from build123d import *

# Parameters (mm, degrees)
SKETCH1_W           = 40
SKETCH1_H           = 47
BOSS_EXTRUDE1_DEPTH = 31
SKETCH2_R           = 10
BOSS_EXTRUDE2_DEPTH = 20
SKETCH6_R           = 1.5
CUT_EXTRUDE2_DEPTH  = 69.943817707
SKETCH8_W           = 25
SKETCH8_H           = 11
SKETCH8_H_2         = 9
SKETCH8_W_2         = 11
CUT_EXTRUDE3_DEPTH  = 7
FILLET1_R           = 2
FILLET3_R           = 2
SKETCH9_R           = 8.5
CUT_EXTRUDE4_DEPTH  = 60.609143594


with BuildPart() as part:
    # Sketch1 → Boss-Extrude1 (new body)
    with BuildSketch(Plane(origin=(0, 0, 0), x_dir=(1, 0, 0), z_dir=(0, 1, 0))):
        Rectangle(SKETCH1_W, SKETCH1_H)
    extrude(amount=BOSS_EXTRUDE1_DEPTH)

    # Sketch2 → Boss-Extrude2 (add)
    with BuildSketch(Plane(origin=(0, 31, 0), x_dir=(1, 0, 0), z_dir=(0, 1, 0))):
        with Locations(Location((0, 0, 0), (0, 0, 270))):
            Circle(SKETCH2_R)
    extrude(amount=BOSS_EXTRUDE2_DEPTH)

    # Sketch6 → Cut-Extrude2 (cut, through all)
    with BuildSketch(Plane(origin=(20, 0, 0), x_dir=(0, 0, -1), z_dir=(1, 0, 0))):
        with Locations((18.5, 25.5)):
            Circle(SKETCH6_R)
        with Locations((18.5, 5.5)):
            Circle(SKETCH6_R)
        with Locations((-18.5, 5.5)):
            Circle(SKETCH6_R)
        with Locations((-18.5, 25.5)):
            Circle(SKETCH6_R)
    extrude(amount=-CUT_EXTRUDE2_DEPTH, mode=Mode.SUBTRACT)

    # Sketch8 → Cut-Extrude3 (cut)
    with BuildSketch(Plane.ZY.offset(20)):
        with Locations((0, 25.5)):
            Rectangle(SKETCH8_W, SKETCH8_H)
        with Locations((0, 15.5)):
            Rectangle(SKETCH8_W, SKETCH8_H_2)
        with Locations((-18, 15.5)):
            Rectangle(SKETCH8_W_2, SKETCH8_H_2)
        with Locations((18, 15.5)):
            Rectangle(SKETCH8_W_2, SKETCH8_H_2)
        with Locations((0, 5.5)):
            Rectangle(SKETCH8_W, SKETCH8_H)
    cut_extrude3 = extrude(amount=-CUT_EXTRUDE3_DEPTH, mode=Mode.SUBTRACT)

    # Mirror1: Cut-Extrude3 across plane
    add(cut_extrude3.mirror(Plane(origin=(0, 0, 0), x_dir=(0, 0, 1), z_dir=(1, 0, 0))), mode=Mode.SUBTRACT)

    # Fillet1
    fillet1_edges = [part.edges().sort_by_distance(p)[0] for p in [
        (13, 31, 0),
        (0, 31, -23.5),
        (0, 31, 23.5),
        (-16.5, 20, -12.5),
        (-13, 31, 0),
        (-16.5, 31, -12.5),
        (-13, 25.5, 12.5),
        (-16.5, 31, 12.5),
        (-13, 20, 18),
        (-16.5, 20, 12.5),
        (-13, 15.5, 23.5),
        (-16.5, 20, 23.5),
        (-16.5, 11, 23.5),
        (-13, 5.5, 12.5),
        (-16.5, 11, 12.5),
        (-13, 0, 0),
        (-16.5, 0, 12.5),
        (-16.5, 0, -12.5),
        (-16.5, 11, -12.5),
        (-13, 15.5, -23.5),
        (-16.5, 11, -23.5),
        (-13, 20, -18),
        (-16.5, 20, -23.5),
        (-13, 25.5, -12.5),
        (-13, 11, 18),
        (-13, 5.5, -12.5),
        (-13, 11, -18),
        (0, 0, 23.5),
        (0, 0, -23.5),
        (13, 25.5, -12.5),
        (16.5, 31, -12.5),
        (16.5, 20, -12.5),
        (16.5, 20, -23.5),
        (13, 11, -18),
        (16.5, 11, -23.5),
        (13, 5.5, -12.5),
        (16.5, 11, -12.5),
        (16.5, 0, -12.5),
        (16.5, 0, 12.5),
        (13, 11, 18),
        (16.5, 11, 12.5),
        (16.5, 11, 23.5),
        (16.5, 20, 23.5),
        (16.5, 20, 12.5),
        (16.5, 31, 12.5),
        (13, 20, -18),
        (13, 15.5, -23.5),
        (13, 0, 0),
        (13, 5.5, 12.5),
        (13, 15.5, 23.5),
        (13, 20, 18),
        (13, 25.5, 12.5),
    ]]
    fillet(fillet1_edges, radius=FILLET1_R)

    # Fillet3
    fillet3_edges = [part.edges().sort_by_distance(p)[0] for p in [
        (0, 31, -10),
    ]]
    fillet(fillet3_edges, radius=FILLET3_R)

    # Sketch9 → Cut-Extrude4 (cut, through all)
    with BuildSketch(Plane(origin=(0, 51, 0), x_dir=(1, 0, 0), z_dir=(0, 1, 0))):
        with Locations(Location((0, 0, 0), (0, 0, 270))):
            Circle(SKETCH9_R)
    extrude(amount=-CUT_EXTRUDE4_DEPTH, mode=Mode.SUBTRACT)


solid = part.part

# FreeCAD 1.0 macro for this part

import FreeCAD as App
import Part
import Sketcher
Q = App.Units.Quantity


def edges_at(feature, points):
    """Names of the edges that pass closest to the given points."""
    edges = feature.Shape.Edges
    near = lambda p: min(range(len(edges)), key=lambda i: edges[i].distToShape(Part.Vertex(*p))[0])
    return sorted({f"Edge{near(p) + 1}" for p in points})


def add_polygon(sketch, points):
    """Adds a closed chain of lines whose ends are joined by coincident constraints."""
    first, n = sketch.GeometryCount, len(points)
    for a, b in zip(points, points[1:] + points[:1]):
        sketch.addGeometry(Part.LineSegment(App.Vector(*a, 0), App.Vector(*b, 0)), False)
    for i in range(n):
        sketch.addConstraint(Sketcher.Constraint("Coincident", first + i, 2, first + (i + 1) % n, 1))

doc = App.newDocument("Part")
body = doc.addObject("PartDesign::Body", "Body")

# Sketch on XZ plane
sketch1 = body.newObject("Sketcher::SketchObject", "Sketch")
sketch1.AttachmentSupport = (doc.getObject("XZ_Plane"), [""])
sketch1.MapMode = "FlatFace"
add_polygon(sketch1, [(-20, -24), (-20, 24), (20, 24), (20, -24)])  # lines 0-3
sketch1.addConstraint([
    Sketcher.Constraint("Vertical", 0),
    Sketcher.Constraint("Horizontal", 1),
    Sketcher.Constraint("Vertical", 2),
    Sketcher.Constraint("Horizontal", 3),
    Sketcher.Constraint("Symmetric", 0, 2, 2, 2, -1, 1),
    Sketcher.Constraint("DistanceX", 1, 1, 1, 2, Q("40 mm")),
    Sketcher.Constraint("DistanceY", 0, 1, 0, 2, Q("47 mm")),
])
pad1 = body.newObject("PartDesign::Pad", "Pad")
pad1.Profile = sketch1
pad1.Length = 31
pad1.Reversed = True

# Sketch on XZ plane
sketch2 = body.newObject("Sketcher::SketchObject", "Sketch001")
sketch2.AttachmentSupport = (doc.getObject("XZ_Plane"), [""])
sketch2.MapMode = "FlatFace"
sketch2.AttachmentOffset = App.Placement(App.Vector(0, 0, -31), App.Rotation())
sketch2.addGeometry(Part.Circle(App.Vector(0, 0, 0), App.Vector(0, 0, 1), 10), False)
sketch2.addConstraint([
    Sketcher.Constraint("Coincident", 0, 3, -1, 1),
    Sketcher.Constraint("Diameter", 0, Q("20 mm")),
])
pad2 = body.newObject("PartDesign::Pad", "Pad001")
pad2.Profile = sketch2
pad2.Length = 20
pad2.Reversed = True

# Sketch on YZ plane
sketch3 = body.newObject("Sketcher::SketchObject", "Sketch002")
sketch3.AttachmentSupport = (doc.getObject("YZ_Plane"), [""])
sketch3.MapMode = "FlatFace"
sketch3.AttachmentOffset = App.Placement(App.Vector(0, 0, 20), App.Rotation())
sketch3.addGeometry([
    Part.Circle(App.Vector(25.5, -18.5, 0), App.Vector(0, 0, 1), 1.5),
    Part.Circle(App.Vector(5.5, -18.5, 0), App.Vector(0, 0, 1), 1.5),
    Part.Circle(App.Vector(5.5, 18.5, 0), App.Vector(0, 0, 1), 1.5),
    Part.Circle(App.Vector(25.5, 18.5, 0), App.Vector(0, 0, 1), 1.5),
], False)
sketch3.addConstraint([
    Sketcher.Constraint("Equal", 0, 1),
    Sketcher.Constraint("Equal", 1, 2),
    Sketcher.Constraint("Equal", 2, 3),
    Sketcher.Constraint("Symmetric", 1, 3, 2, 3, -1),
    Sketcher.Constraint("Symmetric", 0, 3, 3, 3, -1),
    Sketcher.Constraint("Horizontal", 0, 3, 1, 3),
    Sketcher.Constraint("Diameter", 0, Q("3 mm")),
    Sketcher.Constraint("DistanceX", 1, 3, 0, 3, Q("20 mm")),
    Sketcher.Constraint("DistanceY", 1, 3, 2, 3, Q("37 mm")),
    Sketcher.Constraint("DistanceX", -1, 1, 0, 3, Q("25.5 mm")),
])
pocket1 = body.newObject("PartDesign::Pocket", "Pocket")
pocket1.Profile = sketch3
pocket1.Type = "ThroughAll"

# Sketch on YZ plane
sketch4 = body.newObject("Sketcher::SketchObject", "Sketch003")
sketch4.AttachmentSupport = (doc.getObject("YZ_Plane"), [""])
sketch4.MapMode = "FlatFace"
sketch4.AttachmentOffset = App.Placement(App.Vector(0, 0, -20), App.Rotation())
add_polygon(sketch4, [(31, -12), (20, -12), (20, -24), (11, -24), (11, -12), (0, -12), (0, 12), (11, 12), (11, 24), (20, 24), (20, 12), (31, 12)])  # lines 0-11
sketch4.addConstraint([
    Sketcher.Constraint("Horizontal", 0),
    Sketcher.Constraint("Vertical", 1),
    Sketcher.Constraint("Horizontal", 2),
    Sketcher.Constraint("Vertical", 3),
    Sketcher.Constraint("Horizontal", 4),
    Sketcher.Constraint("Vertical", 5),
    Sketcher.Constraint("Horizontal", 6),
    Sketcher.Constraint("Vertical", 7),
    Sketcher.Constraint("Horizontal", 8),
    Sketcher.Constraint("Vertical", 9),
    Sketcher.Constraint("Horizontal", 10),
    Sketcher.Constraint("Vertical", 11),
    Sketcher.Constraint("Symmetric", 4, 2, 5, 2, -1, 1),
    Sketcher.Constraint("Symmetric", 2, 2, 7, 2, -1),
    Sketcher.Constraint("Symmetric", 0, 2, 9, 2, -1),
    Sketcher.Constraint("Horizontal", 0, 2, 3, 2),
    Sketcher.Constraint("Equal", 0, 4),
    Sketcher.Constraint("Equal", 10, 1),
    Sketcher.Constraint("DistanceX", 0, 2, 0, 1, Q("11 mm")),
    Sketcher.Constraint("DistanceX", 2, 2, 2, 1, Q("9 mm")),
    Sketcher.Constraint("DistanceY", 5, 1, 5, 2, Q("25 mm")),
])
pocket2 = body.newObject("PartDesign::Pocket", "Pocket001")
pocket2.Profile = sketch4
pocket2.Length = 7
pocket2.Reversed = True
doc.recompute()

mirrored = body.newObject("PartDesign::Mirrored", "Mirrored")
mirrored.Originals = [pocket2]
mirrored.MirrorPlane = (doc.getObject("YZ_Plane"), [""])
body.Tip = mirrored
doc.recompute()

fillet = body.newObject("PartDesign::Fillet", "Fillet")
fillet.Base = (mirrored, edges_at(mirrored, [
    (13, 31, 0),
    (0, 31, -23.5),
    (0, 31, 23.5),
    (-16.5, 20, -12.5),
    (-13, 31, 0),
    (-16.5, 31, -12.5),
    (-13, 25.5, 12.5),
    (-16.5, 31, 12.5),
    (-13, 20, 18),
    (-16.5, 20, 12.5),
    (-13, 15.5, 23.5),
    (-16.5, 20, 23.5),
    (-16.5, 11, 23.5),
    (-13, 5.5, 12.5),
    (-16.5, 11, 12.5),
    (-13, 0, 0),
    (-16.5, 0, 12.5),
    (-16.5, 0, -12.5),
    (-16.5, 11, -12.5),
    (-13, 15.5, -23.5),
    (-16.5, 11, -23.5),
    (-13, 20, -18),
    (-16.5, 20, -23.5),
    (-13, 25.5, -12.5),
    (-13, 11, 18),
    (-13, 5.5, -12.5),
    (-13, 11, -18),
    (0, 0, 23.5),
    (0, 0, -23.5),
    (13, 25.5, -12.5),
    (16.5, 31, -12.5),
    (16.5, 20, -12.5),
    (16.5, 20, -23.5),
    (13, 11, -18),
    (16.5, 11, -23.5),
    (13, 5.5, -12.5),
    (16.5, 11, -12.5),
    (16.5, 0, -12.5),
    (16.5, 0, 12.5),
    (13, 11, 18),
    (16.5, 11, 12.5),
    (16.5, 11, 23.5),
    (16.5, 20, 23.5),
    (16.5, 20, 12.5),
    (16.5, 31, 12.5),
    (13, 20, -18),
    (13, 15.5, -23.5),
    (13, 0, 0),
    (13, 5.5, 12.5),
    (13, 15.5, 23.5),
    (13, 20, 18),
    (13, 25.5, 12.5),
]))
fillet.Radius = 2
doc.recompute()

fillet2 = body.newObject("PartDesign::Fillet", "Fillet001")
fillet2.Base = (fillet, edges_at(fillet, [(0, 31, -10)]))
fillet2.Radius = 2

# Sketch on XZ plane
sketch5 = body.newObject("Sketcher::SketchObject", "Sketch004")
sketch5.AttachmentSupport = (doc.getObject("XZ_Plane"), [""])
sketch5.MapMode = "FlatFace"
sketch5.AttachmentOffset = App.Placement(App.Vector(0, 0, -51), App.Rotation())
sketch5.addGeometry(Part.Circle(App.Vector(0, 0, 0), App.Vector(0, 0, 1), 8), False)
sketch5.addConstraint([
    Sketcher.Constraint("Coincident", 0, 3, -1, 1),
    Sketcher.Constraint("Diameter", 0, Q("17 mm")),
])
pocket3 = body.newObject("PartDesign::Pocket", "Pocket002")
pocket3.Profile = sketch5
pocket3.Type = "ThroughAll"
pocket3.Reversed = True

doc.recompute()
